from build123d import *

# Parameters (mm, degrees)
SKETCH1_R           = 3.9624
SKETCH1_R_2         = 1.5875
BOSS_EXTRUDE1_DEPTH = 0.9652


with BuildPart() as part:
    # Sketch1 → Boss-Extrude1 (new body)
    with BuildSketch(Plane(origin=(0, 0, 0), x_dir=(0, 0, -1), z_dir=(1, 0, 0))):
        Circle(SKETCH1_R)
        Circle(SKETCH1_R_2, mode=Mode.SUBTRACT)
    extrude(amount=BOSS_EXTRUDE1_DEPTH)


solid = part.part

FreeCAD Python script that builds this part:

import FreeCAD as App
import Part
import Sketcher

V = App.Vector
Q = App.Units.Quantity

doc = App.newDocument("Part")
body = doc.addObject("PartDesign::Body", "Body")

sketch1 = body.newObject("Sketcher::SketchObject", "Sketch")
sketch1.AttachmentSupport = (doc.getObject("YZ_Plane"), [""])
sketch1.MapMode = "FlatFace"
sketch1.addGeometry([
    Part.Circle(V(0, 0, 0), V(0, 0, 1), 3.9624),
    Part.Circle(V(0, 0, 0), V(0, 0, 1), 1.5875),
], False)
sketch1.addConstraint([
    Sketcher.Constraint("Coincident", 0, 3, -1, 1),
    Sketcher.Constraint("Coincident", 1, 3, -1, 1),
    Sketcher.Constraint("Diameter", 0, Q("0.312 in")),
    Sketcher.Constraint("Diameter", 1, Q("0.125 in")),
])
pad1 = body.newObject("PartDesign::Pad", "Pad")
pad1.Profile = sketch1
pad1.Length = Q("0.038 in")

doc.recompute()
